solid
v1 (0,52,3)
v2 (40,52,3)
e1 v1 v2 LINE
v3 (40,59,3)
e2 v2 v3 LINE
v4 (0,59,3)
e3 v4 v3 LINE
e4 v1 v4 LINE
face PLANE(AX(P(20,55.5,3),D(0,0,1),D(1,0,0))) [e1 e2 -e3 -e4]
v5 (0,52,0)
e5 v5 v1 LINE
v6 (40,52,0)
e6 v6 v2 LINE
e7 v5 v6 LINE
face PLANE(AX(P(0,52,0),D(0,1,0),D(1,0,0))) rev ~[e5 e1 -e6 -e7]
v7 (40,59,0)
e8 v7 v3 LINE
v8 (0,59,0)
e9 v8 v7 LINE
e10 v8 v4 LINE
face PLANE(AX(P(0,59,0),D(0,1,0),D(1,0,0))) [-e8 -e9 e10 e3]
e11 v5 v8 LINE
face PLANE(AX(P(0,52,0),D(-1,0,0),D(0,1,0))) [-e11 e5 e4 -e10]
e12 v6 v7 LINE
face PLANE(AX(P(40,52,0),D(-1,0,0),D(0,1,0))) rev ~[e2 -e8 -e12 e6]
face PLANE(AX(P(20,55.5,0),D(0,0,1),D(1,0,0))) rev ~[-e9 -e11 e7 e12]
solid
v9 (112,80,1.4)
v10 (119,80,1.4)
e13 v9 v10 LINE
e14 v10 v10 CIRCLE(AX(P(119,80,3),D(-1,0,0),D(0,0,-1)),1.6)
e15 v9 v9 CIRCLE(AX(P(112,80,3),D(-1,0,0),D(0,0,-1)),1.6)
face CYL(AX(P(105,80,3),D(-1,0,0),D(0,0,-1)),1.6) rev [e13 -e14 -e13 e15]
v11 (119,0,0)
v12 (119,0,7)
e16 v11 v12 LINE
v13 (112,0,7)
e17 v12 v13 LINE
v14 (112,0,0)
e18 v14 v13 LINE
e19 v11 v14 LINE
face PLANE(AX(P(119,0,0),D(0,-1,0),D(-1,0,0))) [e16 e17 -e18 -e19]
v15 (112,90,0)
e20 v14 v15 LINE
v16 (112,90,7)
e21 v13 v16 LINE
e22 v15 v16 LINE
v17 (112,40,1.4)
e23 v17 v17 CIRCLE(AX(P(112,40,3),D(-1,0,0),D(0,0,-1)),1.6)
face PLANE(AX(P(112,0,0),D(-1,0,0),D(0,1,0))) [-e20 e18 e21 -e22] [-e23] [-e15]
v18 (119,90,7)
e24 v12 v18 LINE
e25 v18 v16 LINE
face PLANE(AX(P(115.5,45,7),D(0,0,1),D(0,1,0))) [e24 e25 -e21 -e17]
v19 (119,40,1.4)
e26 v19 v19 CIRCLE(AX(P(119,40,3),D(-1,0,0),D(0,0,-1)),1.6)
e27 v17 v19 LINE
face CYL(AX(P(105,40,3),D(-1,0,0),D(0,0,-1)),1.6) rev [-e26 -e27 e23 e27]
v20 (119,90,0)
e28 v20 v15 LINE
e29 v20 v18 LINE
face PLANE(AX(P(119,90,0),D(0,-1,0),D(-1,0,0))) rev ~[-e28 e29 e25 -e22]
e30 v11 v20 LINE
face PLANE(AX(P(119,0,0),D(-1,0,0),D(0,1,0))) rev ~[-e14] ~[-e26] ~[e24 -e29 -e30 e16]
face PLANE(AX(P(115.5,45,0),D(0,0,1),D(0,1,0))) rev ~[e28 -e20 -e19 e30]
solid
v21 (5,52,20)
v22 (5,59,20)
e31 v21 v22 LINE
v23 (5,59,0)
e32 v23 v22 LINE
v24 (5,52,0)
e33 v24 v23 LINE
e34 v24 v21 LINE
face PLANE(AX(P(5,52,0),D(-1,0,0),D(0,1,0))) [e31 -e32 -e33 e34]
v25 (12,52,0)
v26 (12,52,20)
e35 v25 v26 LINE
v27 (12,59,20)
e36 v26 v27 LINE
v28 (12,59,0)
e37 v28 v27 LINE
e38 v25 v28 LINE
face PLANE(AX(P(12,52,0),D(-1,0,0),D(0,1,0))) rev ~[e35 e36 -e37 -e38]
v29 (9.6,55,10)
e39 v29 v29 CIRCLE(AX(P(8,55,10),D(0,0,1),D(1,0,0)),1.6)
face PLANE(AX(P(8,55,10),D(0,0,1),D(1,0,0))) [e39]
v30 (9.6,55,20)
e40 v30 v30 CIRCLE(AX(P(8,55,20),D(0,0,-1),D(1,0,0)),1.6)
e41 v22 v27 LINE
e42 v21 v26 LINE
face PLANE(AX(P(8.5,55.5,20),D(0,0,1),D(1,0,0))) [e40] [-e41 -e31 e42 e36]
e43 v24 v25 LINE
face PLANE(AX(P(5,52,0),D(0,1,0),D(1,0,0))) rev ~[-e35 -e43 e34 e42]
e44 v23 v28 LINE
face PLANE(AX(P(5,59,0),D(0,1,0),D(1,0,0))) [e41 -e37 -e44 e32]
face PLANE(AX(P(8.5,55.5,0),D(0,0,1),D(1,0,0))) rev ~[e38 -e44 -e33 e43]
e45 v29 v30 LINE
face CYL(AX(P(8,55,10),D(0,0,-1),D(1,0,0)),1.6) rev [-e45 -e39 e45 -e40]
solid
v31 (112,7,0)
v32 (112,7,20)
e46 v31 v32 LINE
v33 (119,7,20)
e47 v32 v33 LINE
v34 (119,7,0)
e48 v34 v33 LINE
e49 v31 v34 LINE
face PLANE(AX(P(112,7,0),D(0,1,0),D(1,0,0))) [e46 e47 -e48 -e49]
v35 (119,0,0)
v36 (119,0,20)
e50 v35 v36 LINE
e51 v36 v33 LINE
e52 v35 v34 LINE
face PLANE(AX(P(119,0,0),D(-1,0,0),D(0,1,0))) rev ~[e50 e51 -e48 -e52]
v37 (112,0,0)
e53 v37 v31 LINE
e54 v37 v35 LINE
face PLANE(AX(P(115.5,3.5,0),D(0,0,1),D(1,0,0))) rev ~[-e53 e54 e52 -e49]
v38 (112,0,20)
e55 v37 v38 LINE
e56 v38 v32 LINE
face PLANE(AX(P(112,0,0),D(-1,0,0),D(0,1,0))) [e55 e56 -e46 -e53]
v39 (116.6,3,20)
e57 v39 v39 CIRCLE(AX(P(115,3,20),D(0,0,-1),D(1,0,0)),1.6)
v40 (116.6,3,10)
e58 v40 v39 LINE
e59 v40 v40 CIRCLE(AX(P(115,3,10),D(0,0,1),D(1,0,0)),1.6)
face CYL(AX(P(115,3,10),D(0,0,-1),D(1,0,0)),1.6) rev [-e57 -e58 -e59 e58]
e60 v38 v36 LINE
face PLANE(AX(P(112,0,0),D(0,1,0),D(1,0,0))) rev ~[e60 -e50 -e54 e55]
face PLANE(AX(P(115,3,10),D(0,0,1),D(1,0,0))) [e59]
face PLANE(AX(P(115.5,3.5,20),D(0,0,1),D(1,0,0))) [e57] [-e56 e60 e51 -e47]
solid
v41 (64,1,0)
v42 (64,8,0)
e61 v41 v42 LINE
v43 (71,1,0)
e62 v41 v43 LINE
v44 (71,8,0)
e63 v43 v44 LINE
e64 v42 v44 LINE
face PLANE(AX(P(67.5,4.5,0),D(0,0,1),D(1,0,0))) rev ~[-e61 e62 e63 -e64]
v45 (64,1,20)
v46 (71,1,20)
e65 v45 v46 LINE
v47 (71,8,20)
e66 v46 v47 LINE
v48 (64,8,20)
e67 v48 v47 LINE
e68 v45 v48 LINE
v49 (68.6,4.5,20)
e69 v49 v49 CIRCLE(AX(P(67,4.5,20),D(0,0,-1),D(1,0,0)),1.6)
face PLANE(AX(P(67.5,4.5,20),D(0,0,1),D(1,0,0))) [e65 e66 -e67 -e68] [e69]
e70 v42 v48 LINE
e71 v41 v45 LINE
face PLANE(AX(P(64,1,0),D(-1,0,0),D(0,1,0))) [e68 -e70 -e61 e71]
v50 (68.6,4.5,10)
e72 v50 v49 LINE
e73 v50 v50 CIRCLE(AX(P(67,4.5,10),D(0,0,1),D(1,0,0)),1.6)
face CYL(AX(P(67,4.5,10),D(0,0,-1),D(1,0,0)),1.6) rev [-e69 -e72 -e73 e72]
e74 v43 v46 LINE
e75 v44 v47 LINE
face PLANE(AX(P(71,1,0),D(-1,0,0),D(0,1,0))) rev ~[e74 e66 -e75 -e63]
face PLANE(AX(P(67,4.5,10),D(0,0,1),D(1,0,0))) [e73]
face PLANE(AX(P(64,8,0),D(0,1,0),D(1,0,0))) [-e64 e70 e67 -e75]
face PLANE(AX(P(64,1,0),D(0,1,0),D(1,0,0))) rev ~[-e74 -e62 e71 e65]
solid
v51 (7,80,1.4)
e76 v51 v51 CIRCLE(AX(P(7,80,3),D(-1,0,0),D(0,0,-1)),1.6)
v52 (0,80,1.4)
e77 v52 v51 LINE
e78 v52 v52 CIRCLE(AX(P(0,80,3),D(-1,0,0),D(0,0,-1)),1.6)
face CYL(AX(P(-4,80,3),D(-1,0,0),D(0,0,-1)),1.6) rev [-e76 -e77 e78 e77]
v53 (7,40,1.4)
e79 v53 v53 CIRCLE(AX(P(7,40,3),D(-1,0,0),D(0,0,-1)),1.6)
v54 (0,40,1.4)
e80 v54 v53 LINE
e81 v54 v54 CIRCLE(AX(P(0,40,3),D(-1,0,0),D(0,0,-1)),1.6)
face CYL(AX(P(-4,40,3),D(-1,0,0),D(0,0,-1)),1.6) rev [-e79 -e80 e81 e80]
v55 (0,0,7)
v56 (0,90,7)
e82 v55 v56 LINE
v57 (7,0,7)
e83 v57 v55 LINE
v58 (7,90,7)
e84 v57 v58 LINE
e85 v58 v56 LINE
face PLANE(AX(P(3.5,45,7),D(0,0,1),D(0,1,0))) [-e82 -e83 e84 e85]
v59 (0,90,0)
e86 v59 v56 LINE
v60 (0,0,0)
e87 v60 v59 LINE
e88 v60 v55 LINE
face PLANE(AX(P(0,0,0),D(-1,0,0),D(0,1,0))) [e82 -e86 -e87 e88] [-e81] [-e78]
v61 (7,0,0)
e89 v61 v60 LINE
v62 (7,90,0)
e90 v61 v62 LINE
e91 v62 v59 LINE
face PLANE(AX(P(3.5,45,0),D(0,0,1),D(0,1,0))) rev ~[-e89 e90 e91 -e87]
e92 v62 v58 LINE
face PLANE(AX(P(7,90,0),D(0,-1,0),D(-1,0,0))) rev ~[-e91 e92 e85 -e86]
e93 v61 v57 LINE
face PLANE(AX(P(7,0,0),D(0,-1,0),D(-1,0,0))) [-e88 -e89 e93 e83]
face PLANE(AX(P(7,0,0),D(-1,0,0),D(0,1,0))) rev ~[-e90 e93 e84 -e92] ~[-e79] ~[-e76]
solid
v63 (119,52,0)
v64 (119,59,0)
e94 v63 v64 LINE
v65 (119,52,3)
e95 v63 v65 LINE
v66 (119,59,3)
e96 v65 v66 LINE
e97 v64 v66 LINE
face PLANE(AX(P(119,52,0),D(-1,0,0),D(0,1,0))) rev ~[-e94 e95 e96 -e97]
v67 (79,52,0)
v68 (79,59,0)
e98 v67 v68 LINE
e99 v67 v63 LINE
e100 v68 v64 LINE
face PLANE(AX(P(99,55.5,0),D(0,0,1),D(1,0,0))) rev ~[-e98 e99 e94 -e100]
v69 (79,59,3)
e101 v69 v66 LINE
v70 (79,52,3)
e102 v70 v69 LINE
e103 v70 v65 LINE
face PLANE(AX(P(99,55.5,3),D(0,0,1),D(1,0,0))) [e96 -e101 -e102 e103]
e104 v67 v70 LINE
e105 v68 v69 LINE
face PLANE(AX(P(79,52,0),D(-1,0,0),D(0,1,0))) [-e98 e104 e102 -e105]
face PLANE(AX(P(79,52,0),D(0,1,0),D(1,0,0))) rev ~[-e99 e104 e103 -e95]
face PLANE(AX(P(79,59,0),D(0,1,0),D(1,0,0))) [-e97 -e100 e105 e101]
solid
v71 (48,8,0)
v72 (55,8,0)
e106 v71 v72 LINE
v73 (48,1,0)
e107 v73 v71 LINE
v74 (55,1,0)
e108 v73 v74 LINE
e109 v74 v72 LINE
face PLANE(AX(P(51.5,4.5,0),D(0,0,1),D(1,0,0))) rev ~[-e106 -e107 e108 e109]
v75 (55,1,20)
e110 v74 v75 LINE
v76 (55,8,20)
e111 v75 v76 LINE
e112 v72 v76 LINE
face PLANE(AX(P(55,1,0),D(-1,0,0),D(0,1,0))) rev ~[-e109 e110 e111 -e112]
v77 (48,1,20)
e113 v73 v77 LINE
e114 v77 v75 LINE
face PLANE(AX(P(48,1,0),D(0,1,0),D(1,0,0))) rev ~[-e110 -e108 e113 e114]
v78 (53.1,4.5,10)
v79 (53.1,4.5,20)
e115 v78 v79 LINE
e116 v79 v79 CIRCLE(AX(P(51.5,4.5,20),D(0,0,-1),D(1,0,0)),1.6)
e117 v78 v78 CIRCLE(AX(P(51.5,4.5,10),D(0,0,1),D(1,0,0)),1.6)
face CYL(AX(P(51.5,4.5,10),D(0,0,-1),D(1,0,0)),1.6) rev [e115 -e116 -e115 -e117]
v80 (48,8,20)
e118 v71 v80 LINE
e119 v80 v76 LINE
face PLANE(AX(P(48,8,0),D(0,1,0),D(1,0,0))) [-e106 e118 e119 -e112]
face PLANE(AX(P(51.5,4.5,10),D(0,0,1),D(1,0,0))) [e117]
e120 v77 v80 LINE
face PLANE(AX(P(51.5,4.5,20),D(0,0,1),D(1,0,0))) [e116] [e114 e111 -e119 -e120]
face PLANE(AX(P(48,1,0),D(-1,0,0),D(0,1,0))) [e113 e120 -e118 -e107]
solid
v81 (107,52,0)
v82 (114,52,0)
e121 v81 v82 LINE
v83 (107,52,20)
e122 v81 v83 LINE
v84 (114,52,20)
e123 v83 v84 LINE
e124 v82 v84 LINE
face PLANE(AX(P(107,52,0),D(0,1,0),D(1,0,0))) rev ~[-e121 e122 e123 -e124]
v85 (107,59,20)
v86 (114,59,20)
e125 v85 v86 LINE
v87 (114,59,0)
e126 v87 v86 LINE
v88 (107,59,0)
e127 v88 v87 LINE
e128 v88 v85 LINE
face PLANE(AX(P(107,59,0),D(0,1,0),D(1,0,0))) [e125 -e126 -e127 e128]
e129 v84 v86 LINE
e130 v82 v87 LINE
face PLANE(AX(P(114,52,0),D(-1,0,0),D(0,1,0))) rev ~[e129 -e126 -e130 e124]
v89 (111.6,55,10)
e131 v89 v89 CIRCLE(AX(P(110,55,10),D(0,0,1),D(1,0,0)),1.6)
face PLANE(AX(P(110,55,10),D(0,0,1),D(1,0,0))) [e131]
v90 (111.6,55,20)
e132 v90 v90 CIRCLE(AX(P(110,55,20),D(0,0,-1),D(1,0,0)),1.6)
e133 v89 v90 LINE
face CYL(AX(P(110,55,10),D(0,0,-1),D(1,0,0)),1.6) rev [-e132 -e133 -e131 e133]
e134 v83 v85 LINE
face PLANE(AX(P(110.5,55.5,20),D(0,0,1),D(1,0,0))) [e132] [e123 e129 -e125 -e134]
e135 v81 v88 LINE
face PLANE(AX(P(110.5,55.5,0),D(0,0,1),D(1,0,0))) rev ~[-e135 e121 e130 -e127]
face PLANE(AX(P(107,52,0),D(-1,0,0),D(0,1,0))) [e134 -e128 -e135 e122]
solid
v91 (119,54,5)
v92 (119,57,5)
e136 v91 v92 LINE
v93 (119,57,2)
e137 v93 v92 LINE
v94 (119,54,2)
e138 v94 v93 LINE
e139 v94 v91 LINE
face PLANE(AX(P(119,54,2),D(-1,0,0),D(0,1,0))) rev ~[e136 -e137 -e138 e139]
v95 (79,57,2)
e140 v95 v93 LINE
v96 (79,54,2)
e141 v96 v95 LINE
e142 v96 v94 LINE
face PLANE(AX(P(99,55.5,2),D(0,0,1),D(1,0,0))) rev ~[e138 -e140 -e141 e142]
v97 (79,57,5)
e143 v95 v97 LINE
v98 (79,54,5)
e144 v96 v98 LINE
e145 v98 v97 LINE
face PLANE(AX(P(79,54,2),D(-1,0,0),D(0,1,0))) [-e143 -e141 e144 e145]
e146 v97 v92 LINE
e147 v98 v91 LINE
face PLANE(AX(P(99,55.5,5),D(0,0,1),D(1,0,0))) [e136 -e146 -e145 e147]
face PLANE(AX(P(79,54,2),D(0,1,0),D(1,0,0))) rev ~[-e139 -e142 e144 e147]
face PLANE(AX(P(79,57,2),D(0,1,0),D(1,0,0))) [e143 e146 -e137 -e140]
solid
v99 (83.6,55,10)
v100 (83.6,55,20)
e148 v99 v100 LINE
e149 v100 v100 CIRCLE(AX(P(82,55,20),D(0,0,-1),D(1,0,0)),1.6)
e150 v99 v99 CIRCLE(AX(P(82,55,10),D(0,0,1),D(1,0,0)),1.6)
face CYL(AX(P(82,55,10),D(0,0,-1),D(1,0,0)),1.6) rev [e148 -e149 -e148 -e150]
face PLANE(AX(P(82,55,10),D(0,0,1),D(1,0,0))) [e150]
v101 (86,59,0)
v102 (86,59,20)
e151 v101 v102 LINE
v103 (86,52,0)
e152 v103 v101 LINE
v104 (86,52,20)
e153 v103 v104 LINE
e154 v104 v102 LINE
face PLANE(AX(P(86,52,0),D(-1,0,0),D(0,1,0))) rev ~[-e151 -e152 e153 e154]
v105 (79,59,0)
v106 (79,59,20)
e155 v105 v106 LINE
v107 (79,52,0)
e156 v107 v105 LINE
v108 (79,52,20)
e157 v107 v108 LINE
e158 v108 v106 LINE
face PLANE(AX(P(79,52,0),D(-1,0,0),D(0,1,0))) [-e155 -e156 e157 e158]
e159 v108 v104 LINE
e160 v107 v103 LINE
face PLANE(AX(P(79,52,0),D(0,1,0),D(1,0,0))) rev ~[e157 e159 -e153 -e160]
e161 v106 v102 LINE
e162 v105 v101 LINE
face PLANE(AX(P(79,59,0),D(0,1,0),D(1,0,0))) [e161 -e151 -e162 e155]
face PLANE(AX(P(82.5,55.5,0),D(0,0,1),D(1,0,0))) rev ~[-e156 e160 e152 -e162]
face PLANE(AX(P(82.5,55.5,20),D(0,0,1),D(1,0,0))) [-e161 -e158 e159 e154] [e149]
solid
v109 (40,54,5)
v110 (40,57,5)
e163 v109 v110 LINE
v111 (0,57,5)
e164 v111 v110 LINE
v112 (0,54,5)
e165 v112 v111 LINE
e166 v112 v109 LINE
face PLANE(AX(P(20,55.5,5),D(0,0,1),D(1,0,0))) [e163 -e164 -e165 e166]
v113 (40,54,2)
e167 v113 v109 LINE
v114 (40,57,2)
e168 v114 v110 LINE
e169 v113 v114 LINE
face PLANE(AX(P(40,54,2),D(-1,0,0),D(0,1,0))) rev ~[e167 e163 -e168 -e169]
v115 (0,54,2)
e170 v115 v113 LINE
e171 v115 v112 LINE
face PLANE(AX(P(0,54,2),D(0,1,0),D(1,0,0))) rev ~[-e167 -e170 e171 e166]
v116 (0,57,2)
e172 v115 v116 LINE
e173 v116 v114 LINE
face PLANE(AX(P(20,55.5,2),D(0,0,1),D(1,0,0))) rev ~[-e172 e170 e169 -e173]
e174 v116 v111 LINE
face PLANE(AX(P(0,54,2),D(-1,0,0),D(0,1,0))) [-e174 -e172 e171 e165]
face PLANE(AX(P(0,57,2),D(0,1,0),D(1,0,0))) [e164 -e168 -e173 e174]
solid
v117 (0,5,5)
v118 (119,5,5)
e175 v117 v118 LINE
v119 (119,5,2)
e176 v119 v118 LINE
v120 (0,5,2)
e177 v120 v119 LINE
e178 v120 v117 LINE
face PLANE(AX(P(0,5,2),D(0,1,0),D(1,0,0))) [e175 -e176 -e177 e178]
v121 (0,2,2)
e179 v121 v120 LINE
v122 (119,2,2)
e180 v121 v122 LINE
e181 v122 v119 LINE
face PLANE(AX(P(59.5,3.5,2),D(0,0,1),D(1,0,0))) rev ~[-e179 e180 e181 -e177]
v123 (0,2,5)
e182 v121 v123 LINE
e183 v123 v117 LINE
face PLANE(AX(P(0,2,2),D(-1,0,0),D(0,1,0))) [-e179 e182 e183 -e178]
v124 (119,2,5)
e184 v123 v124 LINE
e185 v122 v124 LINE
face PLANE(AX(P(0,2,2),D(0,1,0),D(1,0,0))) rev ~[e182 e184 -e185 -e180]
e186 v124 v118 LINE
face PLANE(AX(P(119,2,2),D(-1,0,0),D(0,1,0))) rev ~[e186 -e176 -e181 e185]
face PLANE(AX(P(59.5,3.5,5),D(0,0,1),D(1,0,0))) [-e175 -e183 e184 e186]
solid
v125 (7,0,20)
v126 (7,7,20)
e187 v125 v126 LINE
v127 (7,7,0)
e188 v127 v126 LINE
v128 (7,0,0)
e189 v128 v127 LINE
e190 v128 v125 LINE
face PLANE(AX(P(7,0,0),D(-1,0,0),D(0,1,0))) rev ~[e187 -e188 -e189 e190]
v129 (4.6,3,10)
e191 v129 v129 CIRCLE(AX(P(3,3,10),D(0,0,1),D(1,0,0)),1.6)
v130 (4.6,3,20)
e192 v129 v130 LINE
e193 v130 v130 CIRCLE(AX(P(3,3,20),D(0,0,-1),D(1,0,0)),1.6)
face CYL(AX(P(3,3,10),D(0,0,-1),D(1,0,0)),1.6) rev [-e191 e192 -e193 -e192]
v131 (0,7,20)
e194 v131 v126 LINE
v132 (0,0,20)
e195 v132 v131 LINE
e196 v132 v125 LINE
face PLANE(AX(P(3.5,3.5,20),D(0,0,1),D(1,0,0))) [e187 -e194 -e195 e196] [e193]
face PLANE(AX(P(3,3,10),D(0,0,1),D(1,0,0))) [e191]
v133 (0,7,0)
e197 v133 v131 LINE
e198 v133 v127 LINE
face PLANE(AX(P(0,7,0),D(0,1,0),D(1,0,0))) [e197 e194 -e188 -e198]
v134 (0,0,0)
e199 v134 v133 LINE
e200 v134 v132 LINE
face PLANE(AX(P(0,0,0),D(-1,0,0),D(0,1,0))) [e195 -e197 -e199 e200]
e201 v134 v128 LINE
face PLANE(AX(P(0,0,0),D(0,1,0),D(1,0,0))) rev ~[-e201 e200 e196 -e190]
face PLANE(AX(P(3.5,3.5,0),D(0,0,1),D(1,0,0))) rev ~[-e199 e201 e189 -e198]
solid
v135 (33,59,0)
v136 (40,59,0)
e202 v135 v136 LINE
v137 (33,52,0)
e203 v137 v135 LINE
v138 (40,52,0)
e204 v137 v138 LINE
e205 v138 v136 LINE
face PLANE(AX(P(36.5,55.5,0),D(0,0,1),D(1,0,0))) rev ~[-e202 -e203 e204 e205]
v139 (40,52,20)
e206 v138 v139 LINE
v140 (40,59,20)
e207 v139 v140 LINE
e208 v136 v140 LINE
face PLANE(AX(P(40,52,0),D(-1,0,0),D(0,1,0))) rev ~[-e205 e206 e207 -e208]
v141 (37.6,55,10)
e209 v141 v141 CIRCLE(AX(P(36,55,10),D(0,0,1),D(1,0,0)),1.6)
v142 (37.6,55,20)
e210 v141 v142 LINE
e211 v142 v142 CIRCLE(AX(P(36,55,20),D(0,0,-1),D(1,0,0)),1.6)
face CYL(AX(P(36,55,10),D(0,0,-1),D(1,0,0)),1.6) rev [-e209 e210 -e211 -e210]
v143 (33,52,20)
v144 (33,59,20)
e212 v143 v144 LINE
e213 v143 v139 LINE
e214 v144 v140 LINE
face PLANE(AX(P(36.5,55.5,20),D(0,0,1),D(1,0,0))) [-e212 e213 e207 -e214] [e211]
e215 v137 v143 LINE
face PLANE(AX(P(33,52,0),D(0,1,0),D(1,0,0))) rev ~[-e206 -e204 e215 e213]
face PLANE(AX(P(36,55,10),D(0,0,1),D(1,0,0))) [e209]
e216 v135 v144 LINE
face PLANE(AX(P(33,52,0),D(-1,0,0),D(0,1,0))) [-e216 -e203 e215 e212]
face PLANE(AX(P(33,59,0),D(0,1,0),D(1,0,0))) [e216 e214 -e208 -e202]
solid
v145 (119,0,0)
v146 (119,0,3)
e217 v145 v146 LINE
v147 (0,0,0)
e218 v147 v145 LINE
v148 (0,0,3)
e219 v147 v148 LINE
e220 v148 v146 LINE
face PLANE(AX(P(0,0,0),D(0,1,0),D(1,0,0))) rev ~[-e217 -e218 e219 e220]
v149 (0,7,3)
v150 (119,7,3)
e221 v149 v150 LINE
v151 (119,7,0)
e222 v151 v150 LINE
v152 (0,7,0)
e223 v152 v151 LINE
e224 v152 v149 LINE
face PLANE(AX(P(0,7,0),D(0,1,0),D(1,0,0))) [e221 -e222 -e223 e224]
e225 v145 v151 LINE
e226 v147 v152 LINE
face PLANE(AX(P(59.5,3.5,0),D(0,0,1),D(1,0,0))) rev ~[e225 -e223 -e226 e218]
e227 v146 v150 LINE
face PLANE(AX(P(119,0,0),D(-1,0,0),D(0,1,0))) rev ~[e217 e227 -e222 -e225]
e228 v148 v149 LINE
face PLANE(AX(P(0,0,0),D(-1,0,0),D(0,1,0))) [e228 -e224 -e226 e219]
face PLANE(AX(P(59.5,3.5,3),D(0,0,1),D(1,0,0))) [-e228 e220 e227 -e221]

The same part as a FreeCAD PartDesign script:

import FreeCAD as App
import Part
import Sketcher


def add_polygon(sketch, points):
    """Adds a closed chain of lines whose ends are joined by coincident constraints."""
    first, n = sketch.GeometryCount, len(points)
    for a, b in zip(points, points[1:] + points[:1]):
        sketch.addGeometry(Part.LineSegment(App.Vector(*a, 0), App.Vector(*b, 0)), False)
    for i in range(n):
        sketch.addConstraint(Sketcher.Constraint("Coincident", first + i, 2, first + (i + 1) % n, 1))

doc = App.newDocument("Part")
body = doc.addObject("PartDesign::Body", "Body")

sketch1 = doc.addObject("Sketcher::SketchObject", "Sketch")
body.addObject(sketch1)
sketch1.AttachmentSupport = (doc.XY_Plane, [""])
sketch1.MapMode = "FlatFace"
add_polygon(sketch1, [(0, 7), (0, 0), (119, 0), (119, 7)])
sketch1.addConstraint(Sketcher.Constraint("Vertical", 0))
sketch1.addConstraint(Sketcher.Constraint("Horizontal", 1))
sketch1.addConstraint(Sketcher.Constraint("Vertical", 2))
sketch1.addConstraint(Sketcher.Constraint("Horizontal", 3))
sketch1.addConstraint(Sketcher.Constraint("Coincident", 0, 2, -1, 1))
sketch1.addConstraint(Sketcher.Constraint("DistanceX", 1, 1, 1, 2, 119.0))
sketch1.addConstraint(Sketcher.Constraint("DistanceY", 0, 2, 0, 1, 7.0))
pad1 = doc.addObject("PartDesign::Pad", "Pad")
body.addObject(pad1)
pad1.Profile = sketch1
pad1.Length = 3
body2 = doc.addObject("PartDesign::Body", "Body001")

sketch2 = doc.addObject("Sketcher::SketchObject", "Sketch001")
body2.addObject(sketch2)
sketch2.AttachmentSupport = (doc.getObject("XY_Plane001"), [""])
sketch2.MapMode = "FlatFace"
sketch2.AttachmentOffset = App.Placement(App.Vector(0, 0, 2), App.Rotation())
add_polygon(sketch2, [(0, 5), (0, 2), (119, 2), (119, 5)])
sketch2.addConstraint(Sketcher.Constraint("Vertical", 0))
sketch2.addConstraint(Sketcher.Constraint("Horizontal", 1))
sketch2.addConstraint(Sketcher.Constraint("Vertical", 2))
sketch2.addConstraint(Sketcher.Constraint("Horizontal", 3))
sketch2.addConstraint(Sketcher.Constraint("PointOnObject", 0, 2, -2))
sketch2.addConstraint(Sketcher.Constraint("DistanceX", 1, 1, 1, 2, 119.0))
sketch2.addConstraint(Sketcher.Constraint("DistanceY", 0, 2, 0, 1, 3.0))
sketch2.addConstraint(Sketcher.Constraint("DistanceY", -1, 1, 0, 2, 2.0))
pad2 = doc.addObject("PartDesign::Pad", "Pad001")
body2.addObject(pad2)
pad2.Profile = sketch2
pad2.Length = 3
body3 = doc.addObject("PartDesign::Body", "Body002")

sketch3 = doc.addObject("Sketcher::SketchObject", "Sketch002")
body3.addObject(sketch3)
sketch3.AttachmentSupport = (doc.getObject("XY_Plane002"), [""])
sketch3.MapMode = "FlatFace"
sketch3.AttachmentOffset = App.Placement(App.Vector(0, 0, 2), App.Rotation())
add_polygon(sketch3, [(0, 57), (0, 54), (40, 54), (40, 57)])
sketch3.addConstraint(Sketcher.Constraint("Vertical", 0))
sketch3.addConstraint(Sketcher.Constraint("Horizontal", 1))
sketch3.addConstraint(Sketcher.Constraint("Vertical", 2))
sketch3.addConstraint(Sketcher.Constraint("Horizontal", 3))
sketch3.addConstraint(Sketcher.Constraint("PointOnObject", 0, 2, -2))
sketch3.addConstraint(Sketcher.Constraint("DistanceX", 1, 1, 1, 2, 40.0))
sketch3.addConstraint(Sketcher.Constraint("DistanceY", 0, 2, 0, 1, 3.0))
sketch3.addConstraint(Sketcher.Constraint("DistanceY", -1, 1, 0, 2, 54.0))
pad3 = doc.addObject("PartDesign::Pad", "Pad002")
body3.addObject(pad3)
pad3.Profile = sketch3
pad3.Length = 3
body4 = doc.addObject("PartDesign::Body", "Body003")

sketch4 = doc.addObject("Sketcher::SketchObject", "Sketch003")
body4.addObject(sketch4)
sketch4.AttachmentSupport = (doc.getObject("XY_Plane003"), [""])
sketch4.MapMode = "FlatFace"
add_polygon(sketch4, [(0, 59), (0, 52), (40, 52), (40, 59)])
sketch4.addConstraint(Sketcher.Constraint("Vertical", 0))
sketch4.addConstraint(Sketcher.Constraint("Horizontal", 1))
sketch4.addConstraint(Sketcher.Constraint("Vertical", 2))
sketch4.addConstraint(Sketcher.Constraint("Horizontal", 3))
sketch4.addConstraint(Sketcher.Constraint("PointOnObject", 0, 2, -2))
sketch4.addConstraint(Sketcher.Constraint("DistanceX", 1, 1, 1, 2, 40.0))
sketch4.addConstraint(Sketcher.Constraint("DistanceY", 0, 2, 0, 1, 7.0))
sketch4.addConstraint(Sketcher.Constraint("DistanceY", -1, 1, 0, 2, 52.0))
pad4 = doc.addObject("PartDesign::Pad", "Pad003")
body4.addObject(pad4)
pad4.Profile = sketch4
pad4.Length = 3
body5 = doc.addObject("PartDesign::Body", "Body004")

sketch5 = doc.addObject("Sketcher::SketchObject", "Sketch004")
body5.addObject(sketch5)
sketch5.AttachmentSupport = (doc.getObject("XY_Plane004"), [""])
sketch5.MapMode = "FlatFace"
sketch5.AttachmentOffset = App.Placement(App.Vector(0, 0, 2), App.Rotation())
add_polygon(sketch5, [(79, 57), (79, 54), (119, 54), (119, 57)])
sketch5.addConstraint(Sketcher.Constraint("Vertical", 0))
sketch5.addConstraint(Sketcher.Constraint("Horizontal", 1))
sketch5.addConstraint(Sketcher.Constraint("Vertical", 2))
sketch5.addConstraint(Sketcher.Constraint("Horizontal", 3))
sketch5.addConstraint(Sketcher.Constraint("DistanceX", 1, 1, 1, 2, 40.0))
sketch5.addConstraint(Sketcher.Constraint("DistanceY", 0, 2, 0, 1, 3.0))
sketch5.addConstraint(Sketcher.Constraint("DistanceX", -1, 1, 0, 2, 79.0))
sketch5.addConstraint(Sketcher.Constraint("DistanceY", -1, 1, 0, 2, 54.0))
pad5 = doc.addObject("PartDesign::Pad", "Pad004")
body5.addObject(pad5)
pad5.Profile = sketch5
pad5.Length = 3
body6 = doc.addObject("PartDesign::Body", "Body005")

sketch6 = doc.addObject("Sketcher::SketchObject", "Sketch005")
body6.addObject(sketch6)
sketch6.AttachmentSupport = (doc.getObject("XY_Plane005"), [""])
sketch6.MapMode = "FlatFace"
add_polygon(sketch6, [(79, 59), (79, 52), (119, 52), (119, 59)])
sketch6.addConstraint(Sketcher.Constraint("Vertical", 0))
sketch6.addConstraint(Sketcher.Constraint("Horizontal", 1))
sketch6.addConstraint(Sketcher.Constraint("Vertical", 2))
sketch6.addConstraint(Sketcher.Constraint("Horizontal", 3))
sketch6.addConstraint(Sketcher.Constraint("DistanceX", 1, 1, 1, 2, 40.0))
sketch6.addConstraint(Sketcher.Constraint("DistanceY", 0, 2, 0, 1, 7.0))
sketch6.addConstraint(Sketcher.Constraint("DistanceX", -1, 1, 0, 2, 79.0))
sketch6.addConstraint(Sketcher.Constraint("DistanceY", -1, 1, 0, 2, 52.0))
pad6 = doc.addObject("PartDesign::Pad", "Pad005")
body6.addObject(pad6)
pad6.Profile = sketch6
pad6.Length = 3
body7 = doc.addObject("PartDesign::Body", "Body006")

sketch7 = doc.addObject("Sketcher::SketchObject", "Sketch006")
body7.addObject(sketch7)
sketch7.AttachmentSupport = (doc.getObject("XY_Plane006"), [""])
sketch7.MapMode = "FlatFace"
sketch7.AttachmentOffset = App.Placement(App.Vector(0, 0, 10), App.Rotation())
sketch7.addGeometry(Part.Circle(App.Vector(3, 3, 0), App.Vector(0, 0, 1), 1.6), False)
sketch7.addConstraint(Sketcher.Constraint("Diameter", 0, 3.2))
sketch7.addConstraint(Sketcher.Constraint("DistanceX", -1, 1, 0, 3, 3.0))
sketch7.addConstraint(Sketcher.Constraint("DistanceY", -1, 1, 0, 3, 3.0))
pad7 = doc.addObject("PartDesign::Pad", "Pad006")
body7.addObject(pad7)
pad7.Profile = sketch7
pad7.Length = 20
body8 = doc.addObject("PartDesign::Body", "Body007")

sketch8 = doc.addObject("Sketcher::SketchObject", "Sketch007")
body8.addObject(sketch8)
sketch8.AttachmentSupport = (doc.getObject("XY_Plane007"), [""])
sketch8.MapMode = "FlatFace"
add_polygon(sketch8, [(0, 7), (0, 0), (7, 0), (7, 7)])
sketch8.addConstraint(Sketcher.Constraint("Vertical", 0))
sketch8.addConstraint(Sketcher.Constraint("Horizontal", 1))
sketch8.addConstraint(Sketcher.Constraint("Vertical", 2))
sketch8.addConstraint(Sketcher.Constraint("Horizontal", 3))
sketch8.addConstraint(Sketcher.Constraint("Coincident", 0, 2, -1, 1))
sketch8.addConstraint(Sketcher.Constraint("Equal", 3, 0))
sketch8.addConstraint(Sketcher.Constraint("DistanceX", 1, 1, 1, 2, 7.0))
pad8 = doc.addObject("PartDesign::Pad", "Pad007")
body8.addObject(pad8)
pad8.Profile = sketch8
pad8.Length = 20
doc.recompute()

boolean = doc.addObject("PartDesign::Boolean", "Boolean")
body8.addObject(boolean)
boolean.Type = "Cut"
boolean.addObjects([body7])
body9 = doc.addObject("PartDesign::Body", "Body008")

sketch9 = doc.addObject("Sketcher::SketchObject", "Sketch008")
body9.addObject(sketch9)
sketch9.AttachmentSupport = (doc.getObject("XY_Plane008"), [""])
sketch9.MapMode = "FlatFace"
sketch9.AttachmentOffset = App.Placement(App.Vector(0, 0, 10), App.Rotation())
sketch9.addGeometry(Part.Circle(App.Vector(110, 55, 0), App.Vector(0, 0, 1), 1.6), False)
sketch9.addConstraint(Sketcher.Constraint("Diameter", 0, 3.2))
sketch9.addConstraint(Sketcher.Constraint("DistanceX", -1, 1, 0, 3, 110.0))
sketch9.addConstraint(Sketcher.Constraint("DistanceY", -1, 1, 0, 3, 55.0))
pad9 = doc.addObject("PartDesign::Pad", "Pad008")
body9.addObject(pad9)
pad9.Profile = sketch9
pad9.Length = 20
body10 = doc.addObject("PartDesign::Body", "Body009")

sketch10 = doc.addObject("Sketcher::SketchObject", "Sketch009")
body10.addObject(sketch10)
sketch10.AttachmentSupport = (doc.getObject("XY_Plane009"), [""])
sketch10.MapMode = "FlatFace"
add_polygon(sketch10, [(107, 59), (107, 52), (114, 52), (114, 59)])
sketch10.addConstraint(Sketcher.Constraint("Vertical", 0))
sketch10.addConstraint(Sketcher.Constraint("Horizontal", 1))
sketch10.addConstraint(Sketcher.Constraint("Vertical", 2))
sketch10.addConstraint(Sketcher.Constraint("Horizontal", 3))
sketch10.addConstraint(Sketcher.Constraint("Equal", 3, 0))
sketch10.addConstraint(Sketcher.Constraint("DistanceX", 1, 1, 1, 2, 7.0))
sketch10.addConstraint(Sketcher.Constraint("DistanceX", -1, 1, 0, 2, 107.0))
sketch10.addConstraint(Sketcher.Constraint("DistanceY", -1, 1, 0, 2, 52.0))
pad10 = doc.addObject("PartDesign::Pad", "Pad009")
body10.addObject(pad10)
pad10.Profile = sketch10
pad10.Length = 20
doc.recompute()

boolean2 = doc.addObject("PartDesign::Boolean", "Boolean001")
body10.addObject(boolean2)
boolean2.Type = "Cut"
boolean2.addObjects([body9])
body11 = doc.addObject("PartDesign::Body", "Body010")

sketch11 = doc.addObject("Sketcher::SketchObject", "Sketch010")
body11.addObject(sketch11)
sketch11.AttachmentSupport = (doc.getObject("XY_Plane010"), [""])
sketch11.MapMode = "FlatFace"
sketch11.AttachmentOffset = App.Placement(App.Vector(0, 0, 10), App.Rotation())
sketch11.addGeometry(Part.Circle(App.Vector(36, 55, 0), App.Vector(0, 0, 1), 1.6), False)
sketch11.addConstraint(Sketcher.Constraint("Diameter", 0, 3.2))
sketch11.addConstraint(Sketcher.Constraint("DistanceX", -1, 1, 0, 3, 36.0))
sketch11.addConstraint(Sketcher.Constraint("DistanceY", -1, 1, 0, 3, 55.0))
pad11 = doc.addObject("PartDesign::Pad", "Pad010")
body11.addObject(pad11)
pad11.Profile = sketch11
pad11.Length = 20
body12 = doc.addObject("PartDesign::Body", "Body011")

sketch12 = doc.addObject("Sketcher::SketchObject", "Sketch011")
body12.addObject(sketch12)
sketch12.AttachmentSupport = (doc.getObject("XY_Plane011"), [""])
sketch12.MapMode = "FlatFace"
add_polygon(sketch12, [(33, 59), (33, 52), (40, 52), (40, 59)])
sketch12.addConstraint(Sketcher.Constraint("Vertical", 0))
sketch12.addConstraint(Sketcher.Constraint("Horizontal", 1))
sketch12.addConstraint(Sketcher.Constraint("Vertical", 2))
sketch12.addConstraint(Sketcher.Constraint("Horizontal", 3))
sketch12.addConstraint(Sketcher.Constraint("Equal", 3, 0))
sketch12.addConstraint(Sketcher.Constraint("DistanceX", 1, 1, 1, 2, 7.0))
sketch12.addConstraint(Sketcher.Constraint("DistanceX", -1, 1, 0, 2, 33.0))
sketch12.addConstraint(Sketcher.Constraint("DistanceY", -1, 1, 0, 2, 52.0))
pad12 = doc.addObject("PartDesign::Pad", "Pad011")
body12.addObject(pad12)
pad12.Profile = sketch12
pad12.Length = 20
doc.recompute()

boolean3 = doc.addObject("PartDesign::Boolean", "Boolean002")
body12.addObject(boolean3)
boolean3.Type = "Cut"
boolean3.addObjects([body11])
body13 = doc.addObject("PartDesign::Body", "Body012")

sketch13 = doc.addObject("Sketcher::SketchObject", "Sketch012")
body13.addObject(sketch13)
sketch13.AttachmentSupport = (doc.getObject("XY_Plane012"), [""])
sketch13.MapMode = "FlatFace"
sketch13.AttachmentOffset = App.Placement(App.Vector(0, 0, 10), App.Rotation())
sketch13.addGeometry(Part.Circle(App.Vector(8, 55, 0), App.Vector(0, 0, 1), 1.6), False)
sketch13.addConstraint(Sketcher.Constraint("Diameter", 0, 3.2))
sketch13.addConstraint(Sketcher.Constraint("DistanceX", -1, 1, 0, 3, 8.0))
sketch13.addConstraint(Sketcher.Constraint("DistanceY", -1, 1, 0, 3, 55.0))
pad13 = doc.addObject("PartDesign::Pad", "Pad012")
body13.addObject(pad13)
pad13.Profile = sketch13
pad13.Length = 20
body14 = doc.addObject("PartDesign::Body", "Body013")

sketch14 = doc.addObject("Sketcher::SketchObject", "Sketch013")
body14.addObject(sketch14)
sketch14.AttachmentSupport = (doc.getObject("XY_Plane013"), [""])
sketch14.MapMode = "FlatFace"
add_polygon(sketch14, [(5, 59), (5, 52), (12, 52), (12, 59)])
sketch14.addConstraint(Sketcher.Constraint("Vertical", 0))
sketch14.addConstraint(Sketcher.Constraint("Horizontal", 1))
sketch14.addConstraint(Sketcher.Constraint("Vertical", 2))
sketch14.addConstraint(Sketcher.Constraint("Horizontal", 3))
sketch14.addConstraint(Sketcher.Constraint("Equal", 3, 0))
sketch14.addConstraint(Sketcher.Constraint("DistanceX", 1, 1, 1, 2, 7.0))
sketch14.addConstraint(Sketcher.Constraint("DistanceX", -1, 1, 0, 2, 5.0))
sketch14.addConstraint(Sketcher.Constraint("DistanceY", -1, 1, 0, 2, 52.0))
pad14 = doc.addObject("PartDesign::Pad", "Pad013")
body14.addObject(pad14)
pad14.Profile = sketch14
pad14.Length = 20
doc.recompute()

boolean4 = doc.addObject("PartDesign::Boolean", "Boolean003")
body14.addObject(boolean4)
boolean4.Type = "Cut"
boolean4.addObjects([body13])
body15 = doc.addObject("PartDesign::Body", "Body014")

sketch15 = doc.addObject("Sketcher::SketchObject", "Sketch014")
body15.addObject(sketch15)
sketch15.AttachmentSupport = (doc.getObject("XY_Plane014"), [""])
sketch15.MapMode = "FlatFace"
sketch15.AttachmentOffset = App.Placement(App.Vector(0, 0, 10), App.Rotation())
sketch15.addGeometry(Part.Circle(App.Vector(82, 55, 0), App.Vector(0, 0, 1), 1.6), False)
sketch15.addConstraint(Sketcher.Constraint("Diameter", 0, 3.2))
sketch15.addConstraint(Sketcher.Constraint("DistanceX", -1, 1, 0, 3, 82.0))
sketch15.addConstraint(Sketcher.Constraint("DistanceY", -1, 1, 0, 3, 55.0))
pad15 = doc.addObject("PartDesign::Pad", "Pad014")
body15.addObject(pad15)
pad15.Profile = sketch15
pad15.Length = 20
body16 = doc.addObject("PartDesign::Body", "Body015")

sketch16 = doc.addObject("Sketcher::SketchObject", "Sketch015")
body16.addObject(sketch16)
sketch16.AttachmentSupport = (doc.getObject("XY_Plane015"), [""])
sketch16.MapMode = "FlatFace"
add_polygon(sketch16, [(79, 59), (79, 52), (86, 52), (86, 59)])
sketch16.addConstraint(Sketcher.Constraint("Vertical", 0))
sketch16.addConstraint(Sketcher.Constraint("Horizontal", 1))
sketch16.addConstraint(Sketcher.Constraint("Vertical", 2))
sketch16.addConstraint(Sketcher.Constraint("Horizontal", 3))
sketch16.addConstraint(Sketcher.Constraint("Equal", 3, 0))
sketch16.addConstraint(Sketcher.Constraint("DistanceX", 1, 1, 1, 2, 7.0))
sketch16.addConstraint(Sketcher.Constraint("DistanceX", -1, 1, 0, 2, 79.0))
sketch16.addConstraint(Sketcher.Constraint("DistanceY", -1, 1, 0, 2, 52.0))
pad16 = doc.addObject("PartDesign::Pad", "Pad015")
body16.addObject(pad16)
pad16.Profile = sketch16
pad16.Length = 20
doc.recompute()

boolean5 = doc.addObject("PartDesign::Boolean", "Boolean004")
body16.addObject(boolean5)
boolean5.Type = "Cut"
boolean5.addObjects([body15])
body17 = doc.addObject("PartDesign::Body", "Body016")

sketch17 = doc.addObject("Sketcher::SketchObject", "Sketch016")
body17.addObject(sketch17)
sketch17.AttachmentSupport = (doc.getObject("XY_Plane016"), [""])
sketch17.MapMode = "FlatFace"
sketch17.AttachmentOffset = App.Placement(App.Vector(0, 0, 10), App.Rotation())
sketch17.addGeometry(Part.Circle(App.Vector(67, 4.5, 0), App.Vector(0, 0, 1), 1.6), False)
sketch17.addConstraint(Sketcher.Constraint("Diameter", 0, 3.2))
sketch17.addConstraint(Sketcher.Constraint("DistanceX", -1, 1, 0, 3, 67.0))
sketch17.addConstraint(Sketcher.Constraint("DistanceY", -1, 1, 0, 3, 4.5))
pad17 = doc.addObject("PartDesign::Pad", "Pad016")
body17.addObject(pad17)
pad17.Profile = sketch17
pad17.Length = 20
body18 = doc.addObject("PartDesign::Body", "Body017")

sketch18 = doc.addObject("Sketcher::SketchObject", "Sketch017")
body18.addObject(sketch18)
sketch18.AttachmentSupport = (doc.getObject("XY_Plane017"), [""])
sketch18.MapMode = "FlatFace"
add_polygon(sketch18, [(64, 8), (64, 1), (71, 1), (71, 8)])
sketch18.addConstraint(Sketcher.Constraint("Vertical", 0))
sketch18.addConstraint(Sketcher.Constraint("Horizontal", 1))
sketch18.addConstraint(Sketcher.Constraint("Vertical", 2))
sketch18.addConstraint(Sketcher.Constraint("Horizontal", 3))
sketch18.addConstraint(Sketcher.Constraint("Equal", 3, 0))
sketch18.addConstraint(Sketcher.Constraint("DistanceX", 1, 1, 1, 2, 7.0))
sketch18.addConstraint(Sketcher.Constraint("DistanceX", -1, 1, 0, 2, 64.0))
sketch18.addConstraint(Sketcher.Constraint("DistanceY", -1, 1, 0, 2, 1.0))
pad18 = doc.addObject("PartDesign::Pad", "Pad017")
body18.addObject(pad18)
pad18.Profile = sketch18
pad18.Length = 20
doc.recompute()

boolean6 = doc.addObject("PartDesign::Boolean", "Boolean005")
body18.addObject(boolean6)
boolean6.Type = "Cut"
boolean6.addObjects([body17])
body19 = doc.addObject("PartDesign::Body", "Body018")

sketch19 = doc.addObject("Sketcher::SketchObject", "Sketch018")
body19.addObject(sketch19)
sketch19.AttachmentSupport = (doc.getObject("XY_Plane018"), [""])
sketch19.MapMode = "FlatFace"
sketch19.AttachmentOffset = App.Placement(App.Vector(0, 0, 10), App.Rotation())
sketch19.addGeometry(Part.Circle(App.Vector(51.5, 4.5, 0), App.Vector(0, 0, 1), 1.6), False)
sketch19.addConstraint(Sketcher.Constraint("Diameter", 0, 3.2))
sketch19.addConstraint(Sketcher.Constraint("DistanceX", -1, 1, 0, 3, 51.5))
sketch19.addConstraint(Sketcher.Constraint("DistanceY", -1, 1, 0, 3, 4.5))
pad19 = doc.addObject("PartDesign::Pad", "Pad018")
body19.addObject(pad19)
pad19.Profile = sketch19
pad19.Length = 20
body20 = doc.addObject("PartDesign::Body", "Body019")

sketch20 = doc.addObject("Sketcher::SketchObject", "Sketch019")
body20.addObject(sketch20)
sketch20.AttachmentSupport = (doc.getObject("XY_Plane019"), [""])
sketch20.MapMode = "FlatFace"
add_polygon(sketch20, [(48, 8), (48, 1), (55, 1), (55, 8)])
sketch20.addConstraint(Sketcher.Constraint("Vertical", 0))
sketch20.addConstraint(Sketcher.Constraint("Horizontal", 1))
sketch20.addConstraint(Sketcher.Constraint("Vertical", 2))
sketch20.addConstraint(Sketcher.Constraint("Horizontal", 3))
sketch20.addConstraint(Sketcher.Constraint("Equal", 3, 0))
sketch20.addConstraint(Sketcher.Constraint("DistanceX", 1, 1, 1, 2, 7.0))
sketch20.addConstraint(Sketcher.Constraint("DistanceX", -1, 1, 0, 2, 48.0))
sketch20.addConstraint(Sketcher.Constraint("DistanceY", -1, 1, 0, 2, 1.0))
pad20 = doc.addObject("PartDesign::Pad", "Pad019")
body20.addObject(pad20)
pad20.Profile = sketch20
pad20.Length = 20
doc.recompute()

boolean7 = doc.addObject("PartDesign::Boolean", "Boolean006")
body20.addObject(boolean7)
boolean7.Type = "Cut"
boolean7.addObjects([body19])
body21 = doc.addObject("PartDesign::Body", "Body020")

sketch21 = doc.addObject("Sketcher::SketchObject", "Sketch020")
body21.addObject(sketch21)
sketch21.AttachmentSupport = (doc.getObject("XY_Plane020"), [""])
sketch21.MapMode = "FlatFace"
sketch21.AttachmentOffset = App.Placement(App.Vector(0, 0, 10), App.Rotation())
sketch21.addGeometry(Part.Circle(App.Vector(115, 3, 0), App.Vector(0, 0, 1), 1.6), False)
sketch21.addConstraint(Sketcher.Constraint("Diameter", 0, 3.2))
sketch21.addConstraint(Sketcher.Constraint("DistanceX", -1, 1, 0, 3, 115.0))
sketch21.addConstraint(Sketcher.Constraint("DistanceY", -1, 1, 0, 3, 3.0))
pad21 = doc.addObject("PartDesign::Pad", "Pad020")
body21.addObject(pad21)
pad21.Profile = sketch21
pad21.Length = 20
body22 = doc.addObject("PartDesign::Body", "Body021")

sketch22 = doc.addObject("Sketcher::SketchObject", "Sketch021")
body22.addObject(sketch22)
sketch22.AttachmentSupport = (doc.getObject("XY_Plane021"), [""])
sketch22.MapMode = "FlatFace"
add_polygon(sketch22, [(112, 7), (112, 0), (119, 0), (119, 7)])
sketch22.addConstraint(Sketcher.Constraint("Vertical", 0))
sketch22.addConstraint(Sketcher.Constraint("Horizontal", 1))
sketch22.addConstraint(Sketcher.Constraint("Vertical", 2))
sketch22.addConstraint(Sketcher.Constraint("Horizontal", 3))
sketch22.addConstraint(Sketcher.Constraint("PointOnObject", 0, 2, -1))
sketch22.addConstraint(Sketcher.Constraint("Equal", 3, 0))
sketch22.addConstraint(Sketcher.Constraint("DistanceX", 1, 1, 1, 2, 7.0))
sketch22.addConstraint(Sketcher.Constraint("DistanceX", -1, 1, 0, 2, 112.0))
pad22 = doc.addObject("PartDesign::Pad", "Pad021")
body22.addObject(pad22)
pad22.Profile = sketch22
pad22.Length = 20
doc.recompute()

boolean8 = doc.addObject("PartDesign::Boolean", "Boolean007")
body22.addObject(boolean8)
boolean8.Type = "Cut"
boolean8.addObjects([body21])
body23 = doc.addObject("PartDesign::Body", "Body022")

sketch23 = doc.addObject("Sketcher::SketchObject", "Sketch022")
body23.addObject(sketch23)
sketch23.AttachmentSupport = (doc.getObject("XY_Plane022"), [""])
sketch23.MapMode = "FlatFace"
sketch23.addGeometry(Part.Circle(App.Vector(0, 0, 0), App.Vector(0, 0, 1), 1.6), False)
sketch23.addConstraint(Sketcher.Constraint("Coincident", 0, 3, -1, 1))
sketch23.addConstraint(Sketcher.Constraint("Diameter", 0, 3.2))
pad23 = doc.addObject("PartDesign::Pad", "Pad022")
body23.addObject(pad23)
pad23.Profile = sketch23
pad23.Length = 20
body24 = doc.addObject("PartDesign::Body", "Body023")
doc.recompute()

body23.Placement = App.Placement(App.Vector(0, 0, 0), App.Rotation(App.Vector(0, 1, 0), 90))
boolean9 = doc.addObject("PartDesign::Boolean", "Boolean008")
body24.addObject(boolean9)
boolean9.Type = "Fuse"
boolean9.addObjects([body23])
body25 = doc.addObject("PartDesign::Body", "Body024")
doc.recompute()

body24.Placement = App.Placement(App.Vector(-4, 80, 3), App.Rotation(App.Vector(0, 0, 1), 0))
boolean10 = doc.addObject("PartDesign::Boolean", "Boolean009")
body25.addObject(boolean10)
boolean10.Type = "Fuse"
boolean10.addObjects([body24])
body26 = doc.addObject("PartDesign::Body", "Body025")

sketch24 = doc.addObject("Sketcher::SketchObject", "Sketch023")
body26.addObject(sketch24)
sketch24.AttachmentSupport = (doc.getObject("XY_Plane025"), [""])
sketch24.MapMode = "FlatFace"
sketch24.addGeometry(Part.Circle(App.Vector(0, 0, 0), App.Vector(0, 0, 1), 1.6), False)
sketch24.addConstraint(Sketcher.Constraint("Coincident", 0, 3, -1, 1))
sketch24.addConstraint(Sketcher.Constraint("Diameter", 0, 3.2))
pad24 = doc.addObject("PartDesign::Pad", "Pad023")
body26.addObject(pad24)
pad24.Profile = sketch24
pad24.Length = 20
body27 = doc.addObject("PartDesign::Body", "Body026")
doc.recompute()

body26.Placement = App.Placement(App.Vector(0, 0, 0), App.Rotation(App.Vector(0, 1, 0), 90))
boolean11 = doc.addObject("PartDesign::Boolean", "Boolean010")
body27.addObject(boolean11)
boolean11.Type = "Fuse"
boolean11.addObjects([body26])
body28 = doc.addObject("PartDesign::Body", "Body027")
doc.recompute()

body27.Placement = App.Placement(App.Vector(-4, 40, 3), App.Rotation(App.Vector(0, 0, 1), 0))
boolean12 = doc.addObject("PartDesign::Boolean", "Boolean011")
body28.addObject(boolean12)
boolean12.Type = "Fuse"
boolean12.addObjects([body27])
body29 = doc.addObject("PartDesign::Body", "Body028")

sketch25 = doc.addObject("Sketcher::SketchObject", "Sketch024")
body29.addObject(sketch25)
sketch25.AttachmentSupport = (doc.getObject("XY_Plane028"), [""])
sketch25.MapMode = "FlatFace"
add_polygon(sketch25, [(0, 7), (0, 0), (90, 0), (90, 7)])
sketch25.addConstraint(Sketcher.Constraint("Vertical", 0))
sketch25.addConstraint(Sketcher.Constraint("Horizontal", 1))
sketch25.addConstraint(Sketcher.Constraint("Vertical", 2))
sketch25.addConstraint(Sketcher.Constraint("Horizontal", 3))
sketch25.addConstraint(Sketcher.Constraint("Coincident", 0, 2, -1, 1))
sketch25.addConstraint(Sketcher.Constraint("DistanceX", 1, 1, 1, 2, 90.0))
sketch25.addConstraint(Sketcher.Constraint("DistanceY", 0, 2, 0, 1, 7.0))
pad25 = doc.addObject("PartDesign::Pad", "Pad024")
body29.addObject(pad25)
pad25.Profile = sketch25
pad25.Length = 7
body30 = doc.addObject("PartDesign::Body", "Body029")
doc.recompute()

body29.Placement = App.Placement(App.Vector(7, 0, 0), App.Rotation(App.Vector(0, 0, 1), 90))
boolean13 = doc.addObject("PartDesign::Boolean", "Boolean012")
body30.addObject(boolean13)
boolean13.Type = "Fuse"
boolean13.addObjects([body29])
doc.recompute()

boolean14 = doc.addObject("PartDesign::Boolean", "Boolean013")
body30.addObject(boolean14)
boolean14.Type = "Cut"
boolean14.addObjects([body28])
doc.recompute()

boolean15 = doc.addObject("PartDesign::Boolean", "Boolean014")
body30.addObject(boolean15)
boolean15.Type = "Cut"
boolean15.addObjects([body25])
body31 = doc.addObject("PartDesign::Body", "Body030")

sketch26 = doc.addObject("Sketcher::SketchObject", "Sketch025")
body31.addObject(sketch26)
sketch26.AttachmentSupport = (doc.getObject("XY_Plane030"), [""])
sketch26.MapMode = "FlatFace"
sketch26.addGeometry(Part.Circle(App.Vector(0, 0, 0), App.Vector(0, 0, 1), 1.6), False)
sketch26.addConstraint(Sketcher.Constraint("Coincident", 0, 3, -1, 1))
sketch26.addConstraint(Sketcher.Constraint("Diameter", 0, 3.2))
pad26 = doc.addObject("PartDesign::Pad", "Pad025")
body31.addObject(pad26)
pad26.Profile = sketch26
pad26.Length = 20
body32 = doc.addObject("PartDesign::Body", "Body031")
doc.recompute()

body31.Placement = App.Placement(App.Vector(0, 0, 0), App.Rotation(App.Vector(0, 1, 0), 90))
boolean16 = doc.addObject("PartDesign::Boolean", "Boolean015")
body32.addObject(boolean16)
boolean16.Type = "Fuse"
boolean16.addObjects([body31])
body33 = doc.addObject("PartDesign::Body", "Body032")
doc.recompute()

body32.Placement = App.Placement(App.Vector(105, 80, 3), App.Rotation(App.Vector(0, 0, 1), 0))
boolean17 = doc.addObject("PartDesign::Boolean", "Boolean016")
body33.addObject(boolean17)
boolean17.Type = "Fuse"
boolean17.addObjects([body32])
body34 = doc.addObject("PartDesign::Body", "Body033")

sketch27 = doc.addObject("Sketcher::SketchObject", "Sketch026")
body34.addObject(sketch27)
sketch27.AttachmentSupport = (doc.getObject("XY_Plane033"), [""])
sketch27.MapMode = "FlatFace"
sketch27.addGeometry(Part.Circle(App.Vector(0, 0, 0), App.Vector(0, 0, 1), 1.6), False)
sketch27.addConstraint(Sketcher.Constraint("Coincident", 0, 3, -1, 1))
sketch27.addConstraint(Sketcher.Constraint("Diameter", 0, 3.2))
pad27 = doc.addObject("PartDesign::Pad", "Pad026")
body34.addObject(pad27)
pad27.Profile = sketch27
pad27.Length = 20
body35 = doc.addObject("PartDesign::Body", "Body034")
doc.recompute()

body34.Placement = App.Placement(App.Vector(0, 0, 0), App.Rotation(App.Vector(0, 1, 0), 90))
boolean18 = doc.addObject("PartDesign::Boolean", "Boolean017")
body35.addObject(boolean18)
boolean18.Type = "Fuse"
boolean18.addObjects([body34])
body36 = doc.addObject("PartDesign::Body", "Body035")
doc.recompute()

body35.Placement = App.Placement(App.Vector(105, 40, 3), App.Rotation(App.Vector(0, 0, 1), 0))
boolean19 = doc.addObject("PartDesign::Boolean", "Boolean018")
body36.addObject(boolean19)
boolean19.Type = "Fuse"
boolean19.addObjects([body35])
body37 = doc.addObject("PartDesign::Body", "Body036")

sketch28 = doc.addObject("Sketcher::SketchObject", "Sketch027")
body37.addObject(sketch28)
sketch28.AttachmentSupport = (doc.getObject("XY_Plane036"), [""])
sketch28.MapMode = "FlatFace"
add_polygon(sketch28, [(0, 7), (0, 0), (90, 0), (90, 7)])
sketch28.addConstraint(Sketcher.Constraint("Vertical", 0))
sketch28.addConstraint(Sketcher.Constraint("Horizontal", 1))
sketch28.addConstraint(Sketcher.Constraint("Vertical", 2))
sketch28.addConstraint(Sketcher.Constraint("Horizontal", 3))
sketch28.addConstraint(Sketcher.Constraint("Coincident", 0, 2, -1, 1))
sketch28.addConstraint(Sketcher.Constraint("DistanceX", 1, 1, 1, 2, 90.0))
sketch28.addConstraint(Sketcher.Constraint("DistanceY", 0, 2, 0, 1, 7.0))
pad28 = doc.addObject("PartDesign::Pad", "Pad027")
body37.addObject(pad28)
pad28.Profile = sketch28
pad28.Length = 7
body38 = doc.addObject("PartDesign::Body", "Body037")
doc.recompute()

body37.Placement = App.Placement(App.Vector(119, 0, 0), App.Rotation(App.Vector(0, 0, 1), 90))
boolean20 = doc.addObject("PartDesign::Boolean", "Boolean019")
body38.addObject(boolean20)
boolean20.Type = "Fuse"
boolean20.addObjects([body37])
doc.recompute()

boolean21 = doc.addObject("PartDesign::Boolean", "Boolean020")
body38.addObject(boolean21)
boolean21.Type = "Cut"
boolean21.addObjects([body36])
doc.recompute()

boolean22 = doc.addObject("PartDesign::Boolean", "Boolean021")
body38.addObject(boolean22)
boolean22.Type = "Cut"
boolean22.addObjects([body33])

doc.recompute()
